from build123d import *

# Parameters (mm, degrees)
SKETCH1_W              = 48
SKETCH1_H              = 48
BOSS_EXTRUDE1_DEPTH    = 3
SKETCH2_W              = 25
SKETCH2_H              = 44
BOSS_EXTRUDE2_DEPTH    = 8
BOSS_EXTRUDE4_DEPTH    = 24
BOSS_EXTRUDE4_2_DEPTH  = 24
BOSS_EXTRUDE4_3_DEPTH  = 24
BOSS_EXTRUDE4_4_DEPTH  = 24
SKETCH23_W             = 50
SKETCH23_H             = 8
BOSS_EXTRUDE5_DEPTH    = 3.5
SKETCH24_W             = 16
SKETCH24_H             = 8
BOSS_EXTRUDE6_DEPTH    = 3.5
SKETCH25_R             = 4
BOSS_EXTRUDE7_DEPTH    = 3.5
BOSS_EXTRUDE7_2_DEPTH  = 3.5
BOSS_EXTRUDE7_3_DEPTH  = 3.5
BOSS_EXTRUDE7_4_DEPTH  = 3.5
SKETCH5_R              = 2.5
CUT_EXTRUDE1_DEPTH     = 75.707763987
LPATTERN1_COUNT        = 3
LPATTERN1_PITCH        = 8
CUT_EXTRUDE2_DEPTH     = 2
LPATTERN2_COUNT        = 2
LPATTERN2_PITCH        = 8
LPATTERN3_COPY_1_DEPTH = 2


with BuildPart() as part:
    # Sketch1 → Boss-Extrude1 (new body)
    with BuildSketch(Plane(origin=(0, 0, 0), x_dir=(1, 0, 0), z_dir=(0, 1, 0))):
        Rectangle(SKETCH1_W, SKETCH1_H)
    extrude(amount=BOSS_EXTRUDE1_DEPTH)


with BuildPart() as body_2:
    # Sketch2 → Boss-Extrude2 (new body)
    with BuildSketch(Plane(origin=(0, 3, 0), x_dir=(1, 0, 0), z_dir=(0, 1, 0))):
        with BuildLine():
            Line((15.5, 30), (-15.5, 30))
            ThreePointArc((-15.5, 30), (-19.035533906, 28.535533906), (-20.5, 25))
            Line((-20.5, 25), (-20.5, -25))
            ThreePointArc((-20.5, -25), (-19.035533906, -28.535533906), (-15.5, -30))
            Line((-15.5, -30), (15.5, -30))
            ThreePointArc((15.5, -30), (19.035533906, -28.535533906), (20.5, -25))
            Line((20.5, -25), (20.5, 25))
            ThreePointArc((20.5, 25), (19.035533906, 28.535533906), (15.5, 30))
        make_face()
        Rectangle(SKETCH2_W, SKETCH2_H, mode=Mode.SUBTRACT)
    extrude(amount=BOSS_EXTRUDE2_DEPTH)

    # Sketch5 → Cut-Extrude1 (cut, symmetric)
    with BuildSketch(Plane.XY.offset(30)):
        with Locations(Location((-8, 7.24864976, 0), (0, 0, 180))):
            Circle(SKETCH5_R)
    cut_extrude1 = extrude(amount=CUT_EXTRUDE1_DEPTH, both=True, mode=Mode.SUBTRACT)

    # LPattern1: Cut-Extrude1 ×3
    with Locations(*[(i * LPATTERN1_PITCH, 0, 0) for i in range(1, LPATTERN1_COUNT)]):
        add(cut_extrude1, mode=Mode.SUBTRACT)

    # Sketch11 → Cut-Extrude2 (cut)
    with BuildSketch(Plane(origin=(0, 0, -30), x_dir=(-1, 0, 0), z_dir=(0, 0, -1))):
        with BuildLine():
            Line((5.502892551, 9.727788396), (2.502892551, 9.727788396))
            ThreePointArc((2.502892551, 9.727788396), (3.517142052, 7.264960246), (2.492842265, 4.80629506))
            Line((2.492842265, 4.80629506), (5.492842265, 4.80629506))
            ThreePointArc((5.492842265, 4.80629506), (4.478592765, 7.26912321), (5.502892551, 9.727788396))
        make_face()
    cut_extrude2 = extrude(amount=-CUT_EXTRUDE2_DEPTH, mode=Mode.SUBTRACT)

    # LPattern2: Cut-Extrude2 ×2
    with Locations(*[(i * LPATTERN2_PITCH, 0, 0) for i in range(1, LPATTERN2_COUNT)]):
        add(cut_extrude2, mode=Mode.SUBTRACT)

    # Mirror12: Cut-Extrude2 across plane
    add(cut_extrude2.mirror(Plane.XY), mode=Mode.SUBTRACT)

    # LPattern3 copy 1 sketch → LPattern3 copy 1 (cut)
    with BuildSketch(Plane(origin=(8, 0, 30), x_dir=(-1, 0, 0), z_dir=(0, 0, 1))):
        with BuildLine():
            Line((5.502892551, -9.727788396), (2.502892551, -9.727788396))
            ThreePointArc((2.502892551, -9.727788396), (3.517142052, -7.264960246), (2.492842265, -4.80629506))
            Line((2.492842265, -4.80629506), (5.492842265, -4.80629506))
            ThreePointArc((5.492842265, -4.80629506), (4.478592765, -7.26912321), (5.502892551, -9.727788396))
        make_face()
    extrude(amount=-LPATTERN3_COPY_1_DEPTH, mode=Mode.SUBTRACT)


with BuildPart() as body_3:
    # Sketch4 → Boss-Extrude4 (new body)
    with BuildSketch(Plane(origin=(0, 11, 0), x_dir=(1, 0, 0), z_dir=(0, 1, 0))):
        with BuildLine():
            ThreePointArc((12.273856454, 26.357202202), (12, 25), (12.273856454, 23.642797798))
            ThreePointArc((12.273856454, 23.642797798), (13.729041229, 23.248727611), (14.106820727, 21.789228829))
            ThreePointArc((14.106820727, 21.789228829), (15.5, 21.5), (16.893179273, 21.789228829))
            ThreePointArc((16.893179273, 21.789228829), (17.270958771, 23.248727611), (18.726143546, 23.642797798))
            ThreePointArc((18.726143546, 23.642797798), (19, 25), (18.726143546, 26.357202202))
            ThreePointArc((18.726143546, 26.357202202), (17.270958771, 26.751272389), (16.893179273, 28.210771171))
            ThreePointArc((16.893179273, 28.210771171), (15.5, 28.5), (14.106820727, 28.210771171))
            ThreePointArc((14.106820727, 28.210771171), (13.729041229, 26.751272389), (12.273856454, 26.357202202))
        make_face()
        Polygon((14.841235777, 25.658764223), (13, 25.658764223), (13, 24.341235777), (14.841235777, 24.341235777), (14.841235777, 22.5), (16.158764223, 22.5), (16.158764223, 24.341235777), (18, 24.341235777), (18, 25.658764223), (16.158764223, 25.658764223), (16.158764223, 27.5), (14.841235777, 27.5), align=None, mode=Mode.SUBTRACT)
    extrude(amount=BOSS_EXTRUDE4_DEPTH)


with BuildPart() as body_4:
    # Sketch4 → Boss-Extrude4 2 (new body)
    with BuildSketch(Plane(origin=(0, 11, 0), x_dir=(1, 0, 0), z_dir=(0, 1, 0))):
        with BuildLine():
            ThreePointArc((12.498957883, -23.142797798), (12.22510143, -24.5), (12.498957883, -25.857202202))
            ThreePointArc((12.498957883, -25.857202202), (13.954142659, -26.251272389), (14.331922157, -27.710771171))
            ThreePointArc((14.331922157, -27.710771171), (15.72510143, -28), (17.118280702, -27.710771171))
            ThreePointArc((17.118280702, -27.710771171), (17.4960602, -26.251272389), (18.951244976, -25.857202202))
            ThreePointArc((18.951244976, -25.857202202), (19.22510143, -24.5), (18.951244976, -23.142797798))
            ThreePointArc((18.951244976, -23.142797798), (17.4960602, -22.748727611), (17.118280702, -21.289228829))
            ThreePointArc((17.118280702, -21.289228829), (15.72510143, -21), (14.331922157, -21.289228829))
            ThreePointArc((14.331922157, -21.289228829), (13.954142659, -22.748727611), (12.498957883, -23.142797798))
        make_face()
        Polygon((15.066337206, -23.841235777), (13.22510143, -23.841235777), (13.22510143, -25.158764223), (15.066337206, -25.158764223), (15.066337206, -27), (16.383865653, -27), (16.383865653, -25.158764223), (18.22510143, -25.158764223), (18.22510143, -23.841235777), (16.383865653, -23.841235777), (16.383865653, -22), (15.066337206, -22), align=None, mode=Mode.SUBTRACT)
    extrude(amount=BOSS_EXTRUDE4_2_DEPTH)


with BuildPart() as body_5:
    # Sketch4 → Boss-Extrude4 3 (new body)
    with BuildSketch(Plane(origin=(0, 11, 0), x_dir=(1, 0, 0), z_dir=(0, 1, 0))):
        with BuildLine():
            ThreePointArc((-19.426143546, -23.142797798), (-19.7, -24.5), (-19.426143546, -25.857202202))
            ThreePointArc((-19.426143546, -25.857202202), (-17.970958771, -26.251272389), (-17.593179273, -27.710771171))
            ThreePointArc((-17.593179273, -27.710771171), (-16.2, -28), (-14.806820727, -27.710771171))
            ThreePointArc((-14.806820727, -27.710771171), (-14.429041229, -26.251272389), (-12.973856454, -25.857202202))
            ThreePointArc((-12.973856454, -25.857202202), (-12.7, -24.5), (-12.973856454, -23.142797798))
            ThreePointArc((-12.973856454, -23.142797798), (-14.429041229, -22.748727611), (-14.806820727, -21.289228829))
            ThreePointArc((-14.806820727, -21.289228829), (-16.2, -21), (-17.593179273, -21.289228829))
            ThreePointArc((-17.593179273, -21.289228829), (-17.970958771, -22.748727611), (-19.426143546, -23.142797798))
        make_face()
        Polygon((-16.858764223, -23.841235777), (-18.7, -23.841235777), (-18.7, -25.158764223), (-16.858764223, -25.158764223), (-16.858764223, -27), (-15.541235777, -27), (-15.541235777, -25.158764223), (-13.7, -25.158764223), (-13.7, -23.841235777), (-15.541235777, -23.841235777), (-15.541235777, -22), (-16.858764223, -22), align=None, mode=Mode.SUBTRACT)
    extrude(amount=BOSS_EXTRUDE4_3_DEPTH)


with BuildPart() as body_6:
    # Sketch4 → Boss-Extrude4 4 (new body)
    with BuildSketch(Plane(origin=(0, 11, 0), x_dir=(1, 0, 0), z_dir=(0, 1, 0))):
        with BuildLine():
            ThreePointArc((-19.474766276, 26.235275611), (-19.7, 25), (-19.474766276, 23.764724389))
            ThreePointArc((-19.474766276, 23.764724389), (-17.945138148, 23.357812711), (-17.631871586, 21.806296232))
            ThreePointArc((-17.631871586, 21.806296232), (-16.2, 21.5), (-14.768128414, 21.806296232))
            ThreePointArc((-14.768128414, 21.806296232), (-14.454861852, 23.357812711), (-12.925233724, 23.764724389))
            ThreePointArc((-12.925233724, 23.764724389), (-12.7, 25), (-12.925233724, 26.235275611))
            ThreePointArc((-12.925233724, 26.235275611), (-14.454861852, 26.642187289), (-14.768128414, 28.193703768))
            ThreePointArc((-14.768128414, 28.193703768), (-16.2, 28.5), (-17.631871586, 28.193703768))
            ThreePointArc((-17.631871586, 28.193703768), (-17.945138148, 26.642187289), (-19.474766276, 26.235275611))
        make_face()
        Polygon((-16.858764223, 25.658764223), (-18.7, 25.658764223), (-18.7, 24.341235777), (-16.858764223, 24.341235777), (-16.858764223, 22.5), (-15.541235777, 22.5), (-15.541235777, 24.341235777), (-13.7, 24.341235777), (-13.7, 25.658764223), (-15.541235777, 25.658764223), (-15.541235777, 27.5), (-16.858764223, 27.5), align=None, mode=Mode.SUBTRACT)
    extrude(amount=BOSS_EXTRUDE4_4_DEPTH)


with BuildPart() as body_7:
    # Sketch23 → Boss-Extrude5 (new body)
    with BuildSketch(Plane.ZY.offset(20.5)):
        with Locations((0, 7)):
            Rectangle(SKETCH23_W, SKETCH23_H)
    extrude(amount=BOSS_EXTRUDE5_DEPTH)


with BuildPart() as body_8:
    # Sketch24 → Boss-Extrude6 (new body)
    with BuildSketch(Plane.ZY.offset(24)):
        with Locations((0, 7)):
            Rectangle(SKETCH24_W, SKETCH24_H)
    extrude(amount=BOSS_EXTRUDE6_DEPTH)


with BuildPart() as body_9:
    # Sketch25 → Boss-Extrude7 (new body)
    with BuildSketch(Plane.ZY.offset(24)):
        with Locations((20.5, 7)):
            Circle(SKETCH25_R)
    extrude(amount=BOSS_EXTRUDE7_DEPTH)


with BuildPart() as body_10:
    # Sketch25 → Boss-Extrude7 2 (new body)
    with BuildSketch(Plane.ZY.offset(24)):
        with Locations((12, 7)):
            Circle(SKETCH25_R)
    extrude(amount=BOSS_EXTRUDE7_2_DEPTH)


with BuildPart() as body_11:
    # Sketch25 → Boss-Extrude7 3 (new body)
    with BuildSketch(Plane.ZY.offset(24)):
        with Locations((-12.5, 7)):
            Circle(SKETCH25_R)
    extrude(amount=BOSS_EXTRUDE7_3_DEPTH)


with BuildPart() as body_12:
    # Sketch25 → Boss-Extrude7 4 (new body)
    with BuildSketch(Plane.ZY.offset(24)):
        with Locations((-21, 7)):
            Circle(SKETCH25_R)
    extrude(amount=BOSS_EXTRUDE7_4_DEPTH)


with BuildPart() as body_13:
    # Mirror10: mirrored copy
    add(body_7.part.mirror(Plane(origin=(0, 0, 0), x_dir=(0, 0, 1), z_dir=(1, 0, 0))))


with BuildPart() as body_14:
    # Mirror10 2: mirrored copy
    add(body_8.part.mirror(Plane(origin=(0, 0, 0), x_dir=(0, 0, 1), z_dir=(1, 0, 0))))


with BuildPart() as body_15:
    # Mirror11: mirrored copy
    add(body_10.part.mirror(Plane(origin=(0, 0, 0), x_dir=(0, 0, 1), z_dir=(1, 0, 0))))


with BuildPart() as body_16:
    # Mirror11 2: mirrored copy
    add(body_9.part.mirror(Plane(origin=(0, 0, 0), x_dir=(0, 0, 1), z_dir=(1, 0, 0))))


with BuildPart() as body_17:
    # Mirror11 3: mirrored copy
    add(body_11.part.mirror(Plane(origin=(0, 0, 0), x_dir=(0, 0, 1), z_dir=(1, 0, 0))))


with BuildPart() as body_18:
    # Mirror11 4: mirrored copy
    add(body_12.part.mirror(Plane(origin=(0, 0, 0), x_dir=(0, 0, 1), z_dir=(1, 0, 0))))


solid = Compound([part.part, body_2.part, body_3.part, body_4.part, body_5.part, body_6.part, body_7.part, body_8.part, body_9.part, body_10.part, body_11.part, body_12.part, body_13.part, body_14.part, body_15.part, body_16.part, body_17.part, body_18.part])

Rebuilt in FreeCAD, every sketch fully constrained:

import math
import FreeCAD as App
import Part
import Sketcher
Q = App.Units.Quantity


def add_polygon(sketch, points):
    """Adds a closed chain of lines whose ends are joined by coincident constraints."""
    first, n = sketch.GeometryCount, len(points)
    for a, b in zip(points, points[1:] + points[:1]):
        sketch.addGeometry(Part.LineSegment(App.Vector(*a, 0), App.Vector(*b, 0)), False)
    for i in range(n):
        sketch.addConstraint(Sketcher.Constraint("Coincident", first + i, 2, first + (i + 1) % n, 1))

doc = App.newDocument("Part")
params = doc.addObject("Spreadsheet::Sheet", "Params")
for row, (alias, value) in enumerate([
    ("sketch1_width", "48 mm"),
    ("pad1_length", "3 mm"),
    ("sketch2_radius", "5 mm"),
    ("sketch2_width", "31 mm"),
    ("sketch2_width2", "25 mm"),
    ("sketch2_height", "50 mm"),
    ("sketch2_height2", "44 mm"),
    ("pad2_length", "8 mm"),
    ("sketch3_diameter", "5 mm"),
    ("pocket1_length", "151.415528 mm"),
    ("linearpattern_pitch", "8 mm"),
    ("sketch4_width", "3 mm"),
    ("pocket2_length", "2 mm"),
    ("linearpattern2_pitch", "8 mm"),
    ("sketch5_width", "3 mm"),
    ("pocket3_length", "2 mm"),
    ("sketch6_radius", "3.5 mm"),
    ("sketch6_radius2", "1.5 mm"),
    ("pad3_length", "24 mm"),
    ("sketch7_radius", "3.5 mm"),
    ("sketch7_radius2", "1.5 mm"),
    ("pad4_length", "24 mm"),
    ("sketch8_radius", "3.5 mm"),
    ("sketch8_radius2", "1.5 mm"),
    ("pad5_length", "24 mm"),
    ("sketch9_radius", "3.5 mm"),
    ("sketch9_radius2", "1.5 mm"),
    ("pad6_length", "24 mm"),
    ("sketch10_width", "8 mm"),
    ("sketch10_height", "50 mm"),
    ("pad7_length", "3.5 mm"),
    ("sketch11_width", "8 mm"),
    ("sketch11_height", "16 mm"),
    ("pad8_length", "3.5 mm"),
    ("sketch12_diameter", "8 mm"),
    ("pad9_length", "3.5 mm"),
    ("sketch13_diameter", "8 mm"),
    ("pad10_length", "3.5 mm"),
    ("sketch14_diameter", "8 mm"),
    ("pad11_length", "3.5 mm"),
    ("sketch15_diameter", "8 mm"),
    ("pad12_length", "3.5 mm"),
], start=1):
    params.set(f"A{row}", alias)
    params.set(f"B{row}", "=" + value)
    params.setAlias(f"B{row}", alias)

body = doc.addObject("PartDesign::Body", "Body")

sketch1 = body.newObject("Sketcher::SketchObject", "Sketch")
sketch1.AttachmentSupport = (doc.getObject("XZ_Plane"), [""])
sketch1.MapMode = "FlatFace"
add_polygon(sketch1, [(-24, -24), (-24, 24), (24, 24), (24, -24)])
sketch1.addConstraint(Sketcher.Constraint("Vertical", 0))
sketch1.addConstraint(Sketcher.Constraint("Horizontal", 1))
sketch1.addConstraint(Sketcher.Constraint("Vertical", 2))
sketch1.addConstraint(Sketcher.Constraint("Horizontal", 3))
sketch1.addConstraint(Sketcher.Constraint("Symmetric", 0, 2, 2, 2, -1, 1))
sketch1.addConstraint(Sketcher.Constraint("Equal", 3, 0))
sketch1.addConstraint(Sketcher.Constraint("DistanceX", 1, 1, 1, 2, Q("48 mm")))
sketch1.setExpression("Constraints[10]", "Params.sketch1_width")
pad1 = body.newObject("PartDesign::Pad", "Pad")
pad1.Profile = sketch1
pad1.setExpression("Length", "Params.pad1_length")
pad1.Reversed = True
body2 = doc.addObject("PartDesign::Body", "Body001")

sketch2 = body2.newObject("Sketcher::SketchObject", "Sketch001")
sketch2.AttachmentSupport = (doc.getObject("XZ_Plane001"), [""])
sketch2.MapMode = "FlatFace"
sketch2.AttachmentOffset = App.Placement(App.Vector(0, 0, -3), App.Rotation())
sketch2.addGeometry(Part.LineSegment(App.Vector(16, -30, 0), App.Vector(-16, -30, 0)), False)
sketch2.addGeometry(Part.ArcOfCircle(Part.Circle(App.Vector(-16, -25, 0), App.Vector(0, 0, 1), 5), math.radians(180), math.radians(270)), False)
sketch2.addGeometry(Part.LineSegment(App.Vector(-20, -25, 0), App.Vector(-20, 25, 0)), False)
sketch2.addGeometry(Part.ArcOfCircle(Part.Circle(App.Vector(-16, 25, 0), App.Vector(0, 0, 1), 5), math.radians(90), math.radians(180)), False)
sketch2.addGeometry(Part.LineSegment(App.Vector(-16, 30, 0), App.Vector(16, 30, 0)), False)
sketch2.addGeometry(Part.ArcOfCircle(Part.Circle(App.Vector(16, 25, 0), App.Vector(0, 0, 1), 5), math.radians(0), math.radians(90)), False)
sketch2.addGeometry(Part.LineSegment(App.Vector(20, 25, 0), App.Vector(20, -25, 0)), False)
sketch2.addGeometry(Part.ArcOfCircle(Part.Circle(App.Vector(16, -25, 0), App.Vector(0, 0, 1), 5), math.radians(-90), math.radians(0)), False)
add_polygon(sketch2, [(12, 22), (-12, 22), (-12, -22), (12, -22)])
sketch2.addConstraint(Sketcher.Constraint("Tangent", 0, 2, 1, 2))
sketch2.addConstraint(Sketcher.Constraint("Tangent", 1, 1, 2, 1))
sketch2.addConstraint(Sketcher.Constraint("Tangent", 2, 2, 3, 2))
sketch2.addConstraint(Sketcher.Constraint("Tangent", 3, 1, 4, 1))
sketch2.addConstraint(Sketcher.Constraint("Tangent", 4, 2, 5, 2))
sketch2.addConstraint(Sketcher.Constraint("Tangent", 5, 1, 6, 1))
sketch2.addConstraint(Sketcher.Constraint("Tangent", 6, 2, 7, 2))
sketch2.addConstraint(Sketcher.Constraint("Tangent", 7, 1, 0, 1))
sketch2.addConstraint(Sketcher.Constraint("Horizontal", 0))
sketch2.addConstraint(Sketcher.Constraint("Vertical", 2))
sketch2.addConstraint(Sketcher.Constraint("Horizontal", 4))
sketch2.addConstraint(Sketcher.Constraint("Vertical", 6))
sketch2.addConstraint(Sketcher.Constraint("Horizontal", 8))
sketch2.addConstraint(Sketcher.Constraint("Vertical", 9))
sketch2.addConstraint(Sketcher.Constraint("Horizontal", 10))
sketch2.addConstraint(Sketcher.Constraint("Vertical", 11))
sketch2.addConstraint(Sketcher.Constraint("Equal", 1, 3))
sketch2.addConstraint(Sketcher.Constraint("Equal", 3, 5))
sketch2.addConstraint(Sketcher.Constraint("Equal", 5, 7))
sketch2.addConstraint(Sketcher.Constraint("Symmetric", 1, 3, 5, 3, -1, 1))
sketch2.addConstraint(Sketcher.Constraint("Symmetric", 8, 2, 10, 2, -1, 1))
sketch2.addConstraint(Sketcher.Constraint("Radius", 1, Q("5 mm")))
sketch2.addConstraint(Sketcher.Constraint("DistanceX", 0, 2, 0, 1, Q("31 mm")))
sketch2.addConstraint(Sketcher.Constraint("DistanceX", 8, 2, 8, 1, Q("25 mm")))
sketch2.addConstraint(Sketcher.Constraint("DistanceY", 2, 1, 2, 2, Q("50 mm")))
sketch2.addConstraint(Sketcher.Constraint("DistanceY", 9, 2, 9, 1, Q("44 mm")))
sketch2.setExpression("Constraints[25]", "Params.sketch2_radius")
sketch2.setExpression("Constraints[26]", "Params.sketch2_width")
sketch2.setExpression("Constraints[27]", "Params.sketch2_width2")
sketch2.setExpression("Constraints[28]", "Params.sketch2_height")
sketch2.setExpression("Constraints[29]", "Params.sketch2_height2")
pad2 = body2.newObject("PartDesign::Pad", "Pad001")
pad2.Profile = sketch2
pad2.setExpression("Length", "Params.pad2_length")
pad2.Reversed = True

sketch3 = body2.newObject("Sketcher::SketchObject", "Sketch002")
sketch3.AttachmentSupport = (doc.getObject("XY_Plane001"), [""])
sketch3.MapMode = "FlatFace"
sketch3.AttachmentOffset = App.Placement(App.Vector(0, 0, 30), App.Rotation())
sketch3.addGeometry(Part.Circle(App.Vector(-8, 7.2, 0), App.Vector(0, 0, 1), 2.5), False)
sketch3.addConstraint(Sketcher.Constraint("Diameter", 0, Q("5 mm")))
sketch3.addConstraint(Sketcher.Constraint("DistanceX", 0, 3, -1, 1, Q("8 mm")))
sketch3.addConstraint(Sketcher.Constraint("DistanceY", -1, 1, 0, 3, Q("7.24865 mm")))
sketch3.setExpression("Constraints[0]", "Params.sketch3_diameter")
pocket1 = body2.newObject("PartDesign::Pocket", "Pocket")
pocket1.Profile = sketch3
pocket1.setExpression("Length", "Params.pocket1_length")
pocket1.Midplane = True
doc.recompute()

linearpattern = body2.newObject("PartDesign::LinearPattern", "LinearPattern")
linearpattern.Originals = [pocket1]
linearpattern.Direction = (doc.getObject("X_Axis001"), [""])
linearpattern.Mode = "offset"
linearpattern.setExpression("Offset", "Params.linearpattern_pitch")
linearpattern.Occurrences = 3
body2.Tip = linearpattern

sketch4 = body2.newObject("Sketcher::SketchObject", "Sketch003")
sketch4.AttachmentSupport = (doc.getObject("XY_Plane001"), [""])
sketch4.MapMode = "FlatFace"
sketch4.AttachmentOffset = App.Placement(App.Vector(0, 0, -30), App.Rotation())
sketch4.addGeometry(Part.LineSegment(App.Vector(-5.5, 9.7, 0), App.Vector(-2.5, 9.7, 0)), False)
sketch4.addGeometry(Part.ArcOfCircle(Part.Circle(App.Vector(0, 7.3, 0), App.Vector(0, 0, 1), 3.5), math.radians(135), math.radians(225)), False)
sketch4.addGeometry(Part.LineSegment(App.Vector(-2.5, 4.8, 0), App.Vector(-5.5, 4.8, 0)), False)
sketch4.addGeometry(Part.ArcOfCircle(Part.Circle(App.Vector(-8, 7.3, 0), App.Vector(0, 0, 1), 3.5), math.radians(-45), math.radians(45)), False)
sketch4.addConstraint(Sketcher.Constraint("Coincident", 0, 2, 1, 1))
sketch4.addConstraint(Sketcher.Constraint("Coincident", 1, 2, 2, 1))
sketch4.addConstraint(Sketcher.Constraint("Coincident", 2, 2, 3, 1))
sketch4.addConstraint(Sketcher.Constraint("Coincident", 3, 2, 0, 1))
sketch4.addConstraint(Sketcher.Constraint("Horizontal", 0))
sketch4.addConstraint(Sketcher.Constraint("Horizontal", 2))
sketch4.addConstraint(Sketcher.Constraint("Equal", 1, 3))
sketch4.addConstraint(Sketcher.Constraint("Equal", 0, 2))
sketch4.addConstraint(Sketcher.Constraint("DistanceX", 0, 1, 0, 2, Q("3 mm")))
sketch4.addConstraint(Sketcher.Constraint("Radius", 1, Q("3.480029 mm")))
sketch4.addConstraint(Sketcher.Constraint("DistanceX", 1, 3, -1, 1, Q("0.037121 mm")))
sketch4.addConstraint(Sketcher.Constraint("DistanceY", -1, 1, 0, 2, Q("9.727788 mm")))
sketch4.addConstraint(Sketcher.Constraint("DistanceY", 3, 3, 1, 3, Q("0.01005 mm")))
sketch4.addConstraint(Sketcher.Constraint("DistanceX", 0, 2, 1, 3, Q("2.465772 mm")))
sketch4.setExpression("Constraints[8]", "Params.sketch4_width")
pocket2 = body2.newObject("PartDesign::Pocket", "Pocket001")
pocket2.Profile = sketch4
pocket2.setExpression("Length", "Params.pocket2_length")
pocket2.Reversed = True
doc.recompute()

linearpattern2 = body2.newObject("PartDesign::LinearPattern", "LinearPattern001")
linearpattern2.Originals = [pocket2]
linearpattern2.Direction = (doc.getObject("X_Axis001"), [""])
linearpattern2.Mode = "offset"
linearpattern2.setExpression("Offset", "Params.linearpattern2_pitch")
linearpattern2.Occurrences = 2
body2.Tip = linearpattern2
doc.recompute()

mirrored = body2.newObject("PartDesign::Mirrored", "Mirrored")
mirrored.Originals = [pocket2]
mirrored.MirrorPlane = (doc.getObject("XY_Plane001"), [""])
body2.Tip = mirrored

sketch5 = body2.newObject("Sketcher::SketchObject", "Sketch004")
sketch5.AttachmentSupport = (doc.getObject("XY_Plane001"), [""])
sketch5.MapMode = "FlatFace"
sketch5.AttachmentOffset = App.Placement(App.Vector(0, 0, 30), App.Rotation())
sketch5.addGeometry(Part.LineSegment(App.Vector(5.5, 9.7, 0), App.Vector(2.5, 9.7, 0)), False)
sketch5.addGeometry(Part.ArcOfCircle(Part.Circle(App.Vector(0, 7.3, 0), App.Vector(0, 0, 1), 3.5), math.radians(-45), math.radians(45)), False)
sketch5.addGeometry(Part.LineSegment(App.Vector(2.5, 4.8, 0), App.Vector(5.5, 4.8, 0)), False)
sketch5.addGeometry(Part.ArcOfCircle(Part.Circle(App.Vector(8, 7.3, 0), App.Vector(0, 0, 1), 3.5), math.radians(135), math.radians(225)), False)
sketch5.addConstraint(Sketcher.Constraint("Coincident", 0, 2, 1, 2))
sketch5.addConstraint(Sketcher.Constraint("Coincident", 1, 1, 2, 1))
sketch5.addConstraint(Sketcher.Constraint("Coincident", 2, 2, 3, 2))
sketch5.addConstraint(Sketcher.Constraint("Coincident", 3, 1, 0, 1))
sketch5.addConstraint(Sketcher.Constraint("Horizontal", 0))
sketch5.addConstraint(Sketcher.Constraint("Horizontal", 2))
sketch5.addConstraint(Sketcher.Constraint("Equal", 1, 3))
sketch5.addConstraint(Sketcher.Constraint("Equal", 0, 2))
sketch5.addConstraint(Sketcher.Constraint("DistanceX", 0, 2, 0, 1, Q("3 mm")))
sketch5.addConstraint(Sketcher.Constraint("Radius", 1, Q("3.480029 mm")))
sketch5.addConstraint(Sketcher.Constraint("DistanceX", -1, 1, 3, 3, Q("7.962879 mm")))
sketch5.addConstraint(Sketcher.Constraint("DistanceY", -1, 1, 0, 2, Q("9.727788 mm")))
sketch5.addConstraint(Sketcher.Constraint("DistanceY", 1, 3, 3, 3, Q("0.01005 mm")))
sketch5.addConstraint(Sketcher.Constraint("DistanceX", 1, 3, 0, 2, Q("2.455722 mm")))
sketch5.setExpression("Constraints[8]", "Params.sketch5_width")
pocket3 = body2.newObject("PartDesign::Pocket", "Pocket002")
pocket3.Profile = sketch5
pocket3.setExpression("Length", "Params.pocket3_length")
body3 = doc.addObject("PartDesign::Body", "Body002")

sketch6 = body3.newObject("Sketcher::SketchObject", "Sketch005")
sketch6.AttachmentSupport = (doc.getObject("XZ_Plane002"), [""])
sketch6.MapMode = "FlatFace"
sketch6.AttachmentOffset = App.Placement(App.Vector(0, 0, -11), App.Rotation())
sketch6.addGeometry(Part.ArcOfCircle(Part.Circle(App.Vector(15.5, -25, 0), App.Vector(0, 0, 1), 3.5), math.radians(157), math.radians(203)), False)
sketch6.addGeometry(Part.ArcOfCircle(Part.Circle(App.Vector(12.7, -22.2, 0), App.Vector(0, 0, 1), 1.5), math.radians(-105), math.radians(16)), False)
sketch6.addGeometry(Part.ArcOfCircle(Part.Circle(App.Vector(15.5, -25, 0), App.Vector(0, 0, 1), 3.5), math.radians(67), math.radians(113)), False)
sketch6.addGeometry(Part.ArcOfCircle(Part.Circle(App.Vector(18.3, -22.2, 0), App.Vector(0, 0, 1), 1.5), math.radians(164), math.radians(285)), False)
sketch6.addGeometry(Part.ArcOfCircle(Part.Circle(App.Vector(15.5, -25, 0), App.Vector(0, 0, 1), 3.5), math.radians(-23), math.radians(23)), False)
sketch6.addGeometry(Part.ArcOfCircle(Part.Circle(App.Vector(18.3, -27.8, 0), App.Vector(0, 0, 1), 1.5), math.radians(75), math.radians(196)), False)
sketch6.addGeometry(Part.ArcOfCircle(Part.Circle(App.Vector(15.5, -25, 0), App.Vector(0, 0, 1), 3.5), math.radians(-113), math.radians(-67)), False)
sketch6.addGeometry(Part.ArcOfCircle(Part.Circle(App.Vector(12.7, -27.8, 0), App.Vector(0, 0, 1), 1.5), math.radians(-16), math.radians(105)), False)
add_polygon(sketch6, [(13, -25.7), (14.8, -25.7), (14.8, -27.5), (16.2, -27.5), (16.2, -25.7), (18, -25.7), (18, -24.3), (16.2, -24.3), (16.2, -22.5), (14.8, -22.5), (14.8, -24.3), (13, -24.3)])
sketch6.addConstraint(Sketcher.Constraint("Coincident", 0, 1, 1, 1))
sketch6.addConstraint(Sketcher.Constraint("Coincident", 1, 2, 2, 2))
sketch6.addConstraint(Sketcher.Constraint("Coincident", 2, 1, 3, 1))
sketch6.addConstraint(Sketcher.Constraint("Coincident", 3, 2, 4, 2))
sketch6.addConstraint(Sketcher.Constraint("Coincident", 4, 1, 5, 1))
sketch6.addConstraint(Sketcher.Constraint("Coincident", 5, 2, 6, 2))
sketch6.addConstraint(Sketcher.Constraint("Coincident", 6, 1, 7, 1))
sketch6.addConstraint(Sketcher.Constraint("Coincident", 7, 2, 0, 2))
sketch6.addConstraint(Sketcher.Constraint("Horizontal", 8))
sketch6.addConstraint(Sketcher.Constraint("Vertical", 9))
sketch6.addConstraint(Sketcher.Constraint("Horizontal", 10))
sketch6.addConstraint(Sketcher.Constraint("Vertical", 11))
sketch6.addConstraint(Sketcher.Constraint("Horizontal", 12))
sketch6.addConstraint(Sketcher.Constraint("Vertical", 13))
sketch6.addConstraint(Sketcher.Constraint("Horizontal", 14))
sketch6.addConstraint(Sketcher.Constraint("Vertical", 15))
sketch6.addConstraint(Sketcher.Constraint("Horizontal", 16))
sketch6.addConstraint(Sketcher.Constraint("Vertical", 17))
sketch6.addConstraint(Sketcher.Constraint("Horizontal", 18))
sketch6.addConstraint(Sketcher.Constraint("Vertical", 19))
sketch6.addConstraint(Sketcher.Constraint("Coincident", 2, 3, 0, 3))
sketch6.addConstraint(Sketcher.Constraint("Coincident", 4, 3, 0, 3))
sketch6.addConstraint(Sketcher.Constraint("Coincident", 6, 3, 0, 3))
sketch6.addConstraint(Sketcher.Constraint("Equal", 0, 2))
sketch6.addConstraint(Sketcher.Constraint("Equal", 1, 3))
sketch6.addConstraint(Sketcher.Constraint("Equal", 2, 4))
sketch6.addConstraint(Sketcher.Constraint("Equal", 3, 5))
sketch6.addConstraint(Sketcher.Constraint("Equal", 4, 6))
sketch6.addConstraint(Sketcher.Constraint("Equal", 5, 7))
sketch6.addConstraint(Sketcher.Constraint("Horizontal", 1, 3, 3, 3))
sketch6.addConstraint(Sketcher.Constraint("Horizontal", 5, 3, 7, 3))
sketch6.addConstraint(Sketcher.Constraint("Horizontal", 1, 2, 2, 1))
sketch6.addConstraint(Sketcher.Constraint("Horizontal", 5, 2, 6, 1))
sketch6.addConstraint(Sketcher.Constraint("Horizontal", 8, 2, 11, 2))
sketch6.addConstraint(Sketcher.Constraint("Horizontal", 14, 2, 17, 2))
sketch6.addConstraint(Sketcher.Constraint("Vertical", 3, 3, 5, 3))
sketch6.addConstraint(Sketcher.Constraint("Vertical", 3, 2, 4, 1))
sketch6.addConstraint(Sketcher.Constraint("Vertical", 11, 2, 14, 2))
sketch6.addConstraint(Sketcher.Constraint("Vertical", 9, 2, 16, 2))
sketch6.addConstraint(Sketcher.Constraint("Equal", 8, 12))
sketch6.addConstraint(Sketcher.Constraint("Equal", 18, 9))
sketch6.addConstraint(Sketcher.Constraint("Equal", 16, 13))
sketch6.addConstraint(Sketcher.Constraint("Equal", 11, 15))
sketch6.addConstraint(Sketcher.Constraint("Radius", 0, Q("3.5 mm")))
sketch6.addConstraint(Sketcher.Constraint("Radius", 1, Q("1.5 mm")))
sketch6.addConstraint(Sketcher.Constraint("DistanceY", 0, 3, -1, 1, Q("25 mm")))
sketch6.addConstraint(Sketcher.Constraint("DistanceX", -1, 1, 12, 2, Q("18 mm")))
sketch6.addConstraint(Sketcher.Constraint("DistanceX", -1, 1, 18, 2, Q("13 mm")))
sketch6.addConstraint(Sketcher.Constraint("DistanceX", -1, 1, 0, 3, Q("15.5 mm")))
sketch6.addConstraint(Sketcher.Constraint("DistanceY", 9, 2, -1, 1, Q("27.5 mm")))
sketch6.addConstraint(Sketcher.Constraint("DistanceX", 10, 1, 10, 2, Q("1.317528 mm")))
sketch6.addConstraint(Sketcher.Constraint("DistanceX", -1, 1, 1, 3, Q("12.662469 mm")))
sketch6.addConstraint(Sketcher.Constraint("DistanceX", -1, 1, 1, 2, Q("14.106821 mm")))
sketch6.setExpression("Constraints[55]", "Params.sketch6_radius")
sketch6.setExpression("Constraints[56]", "Params.sketch6_radius2")
pad3 = body3.newObject("PartDesign::Pad", "Pad002")
pad3.Profile = sketch6
pad3.setExpression("Length", "Params.pad3_length")
pad3.Reversed = True
body4 = doc.addObject("PartDesign::Body", "Body003")

sketch7 = body4.newObject("Sketcher::SketchObject", "Sketch006")
sketch7.AttachmentSupport = (doc.getObject("XZ_Plane003"), [""])
sketch7.MapMode = "FlatFace"
sketch7.AttachmentOffset = App.Placement(App.Vector(0, 0, -11), App.Rotation())
sketch7.addGeometry(Part.ArcOfCircle(Part.Circle(App.Vector(15.7, 24.5, 0), App.Vector(0, 0, 1), 3.5), math.radians(157), math.radians(203)), False)
sketch7.addGeometry(Part.ArcOfCircle(Part.Circle(App.Vector(12.9, 27.3, 0), App.Vector(0, 0, 1), 1.5), math.radians(-105), math.radians(16)), False)
sketch7.addGeometry(Part.ArcOfCircle(Part.Circle(App.Vector(15.7, 24.5, 0), App.Vector(0, 0, 1), 3.5), math.radians(67), math.radians(113)), False)
sketch7.addGeometry(Part.ArcOfCircle(Part.Circle(App.Vector(18.6, 27.3, 0), App.Vector(0, 0, 1), 1.5), math.radians(164), math.radians(285)), False)
sketch7.addGeometry(Part.ArcOfCircle(Part.Circle(App.Vector(15.7, 24.5, 0), App.Vector(0, 0, 1), 3.5), math.radians(-23), math.radians(23)), False)
sketch7.addGeometry(Part.ArcOfCircle(Part.Circle(App.Vector(18.6, 21.7, 0), App.Vector(0, 0, 1), 1.5), math.radians(75), math.radians(196)), False)
sketch7.addGeometry(Part.ArcOfCircle(Part.Circle(App.Vector(15.7, 24.5, 0), App.Vector(0, 0, 1), 3.5), math.radians(-113), math.radians(-67)), False)
sketch7.addGeometry(Part.ArcOfCircle(Part.Circle(App.Vector(12.9, 21.7, 0), App.Vector(0, 0, 1), 1.5), math.radians(-16), math.radians(105)), False)
add_polygon(sketch7, [(13.2, 23.8), (15.1, 23.8), (15.1, 22), (16.4, 22), (16.4, 23.8), (18.2, 23.8), (18.2, 25.2), (16.4, 25.2), (16.4, 27), (15.1, 27), (15.1, 25.2), (13.2, 25.2)])
sketch7.addConstraint(Sketcher.Constraint("Coincident", 0, 1, 1, 1))
sketch7.addConstraint(Sketcher.Constraint("Coincident", 1, 2, 2, 2))
sketch7.addConstraint(Sketcher.Constraint("Coincident", 2, 1, 3, 1))
sketch7.addConstraint(Sketcher.Constraint("Coincident", 3, 2, 4, 2))
sketch7.addConstraint(Sketcher.Constraint("Coincident", 4, 1, 5, 1))
sketch7.addConstraint(Sketcher.Constraint("Coincident", 5, 2, 6, 2))
sketch7.addConstraint(Sketcher.Constraint("Coincident", 6, 1, 7, 1))
sketch7.addConstraint(Sketcher.Constraint("Coincident", 7, 2, 0, 2))
sketch7.addConstraint(Sketcher.Constraint("Horizontal", 8))
sketch7.addConstraint(Sketcher.Constraint("Vertical", 9))
sketch7.addConstraint(Sketcher.Constraint("Horizontal", 10))
sketch7.addConstraint(Sketcher.Constraint("Vertical", 11))
sketch7.addConstraint(Sketcher.Constraint("Horizontal", 12))
sketch7.addConstraint(Sketcher.Constraint("Vertical", 13))
sketch7.addConstraint(Sketcher.Constraint("Horizontal", 14))
sketch7.addConstraint(Sketcher.Constraint("Vertical", 15))
sketch7.addConstraint(Sketcher.Constraint("Horizontal", 16))
sketch7.addConstraint(Sketcher.Constraint("Vertical", 17))
sketch7.addConstraint(Sketcher.Constraint("Horizontal", 18))
sketch7.addConstraint(Sketcher.Constraint("Vertical", 19))
sketch7.addConstraint(Sketcher.Constraint("Coincident", 2, 3, 0, 3))
sketch7.addConstraint(Sketcher.Constraint("Coincident", 4, 3, 0, 3))
sketch7.addConstraint(Sketcher.Constraint("Coincident", 6, 3, 0, 3))
sketch7.addConstraint(Sketcher.Constraint("Equal", 0, 2))
sketch7.addConstraint(Sketcher.Constraint("Equal", 1, 3))
sketch7.addConstraint(Sketcher.Constraint("Equal", 2, 4))
sketch7.addConstraint(Sketcher.Constraint("Equal", 3, 5))
sketch7.addConstraint(Sketcher.Constraint("Equal", 4, 6))
sketch7.addConstraint(Sketcher.Constraint("Equal", 5, 7))
sketch7.addConstraint(Sketcher.Constraint("Horizontal", 1, 3, 3, 3))
sketch7.addConstraint(Sketcher.Constraint("Horizontal", 5, 3, 7, 3))
sketch7.addConstraint(Sketcher.Constraint("Horizontal", 1, 2, 2, 1))
sketch7.addConstraint(Sketcher.Constraint("Horizontal", 5, 2, 6, 1))
sketch7.addConstraint(Sketcher.Constraint("Horizontal", 8, 2, 11, 2))
sketch7.addConstraint(Sketcher.Constraint("Horizontal", 14, 2, 17, 2))
sketch7.addConstraint(Sketcher.Constraint("Vertical", 3, 3, 5, 3))
sketch7.addConstraint(Sketcher.Constraint("Vertical", 3, 2, 4, 1))
sketch7.addConstraint(Sketcher.Constraint("Vertical", 11, 2, 14, 2))
sketch7.addConstraint(Sketcher.Constraint("Vertical", 9, 2, 16, 2))
sketch7.addConstraint(Sketcher.Constraint("Equal", 8, 12))
sketch7.addConstraint(Sketcher.Constraint("Equal", 18, 9))
sketch7.addConstraint(Sketcher.Constraint("Equal", 16, 13))
sketch7.addConstraint(Sketcher.Constraint("Equal", 11, 15))
sketch7.addConstraint(Sketcher.Constraint("Radius", 0, Q("3.5 mm")))
sketch7.addConstraint(Sketcher.Constraint("Radius", 1, Q("1.5 mm")))
sketch7.addConstraint(Sketcher.Constraint("DistanceY", -1, 1, 9, 2, Q("22 mm")))
sketch7.addConstraint(Sketcher.Constraint("DistanceY", -1, 1, 15, 2, Q("27 mm")))
sketch7.addConstraint(Sketcher.Constraint("DistanceY", -1, 1, 0, 3, Q("24.5 mm")))
sketch7.addConstraint(Sketcher.Constraint("DistanceX", 4, 3, 12, 2, Q("2.5 mm")))
sketch7.addConstraint(Sketcher.Constraint("DistanceX", 10, 1, 10, 2, Q("1.317528 mm")))
sketch7.addConstraint(Sketcher.Constraint("DistanceX", -1, 1, 0, 3, Q("15.725101 mm")))
sketch7.addConstraint(Sketcher.Constraint("DistanceX", -1, 1, 1, 3, Q("12.887571 mm")))
sketch7.addConstraint(Sketcher.Constraint("DistanceY", -1, 1, 1, 2, Q("27.710771 mm")))
sketch7.setExpression("Constraints[55]", "Params.sketch7_radius")
sketch7.setExpression("Constraints[56]", "Params.sketch7_radius2")
pad4 = body4.newObject("PartDesign::Pad", "Pad003")
pad4.Profile = sketch7
pad4.setExpression("Length", "Params.pad4_length")
pad4.Reversed = True
body5 = doc.addObject("PartDesign::Body", "Body004")

sketch8 = body5.newObject("Sketcher::SketchObject", "Sketch007")
sketch8.AttachmentSupport = (doc.getObject("XZ_Plane004"), [""])
sketch8.MapMode = "FlatFace"
sketch8.AttachmentOffset = App.Placement(App.Vector(0, 0, -11), App.Rotation())
sketch8.addGeometry(Part.ArcOfCircle(Part.Circle(App.Vector(-16.2, 24.5, 0), App.Vector(0, 0, 1), 3.5), math.radians(157), math.radians(203)), False)
sketch8.addGeometry(Part.ArcOfCircle(Part.Circle(App.Vector(-19, 27.3, 0), App.Vector(0, 0, 1), 1.5), math.radians(-105), math.radians(16)), False)
sketch8.addGeometry(Part.ArcOfCircle(Part.Circle(App.Vector(-16.2, 24.5, 0), App.Vector(0, 0, 1), 3.5), math.radians(67), math.radians(113)), False)
sketch8.addGeometry(Part.ArcOfCircle(Part.Circle(App.Vector(-13.4, 27.3, 0), App.Vector(0, 0, 1), 1.5), math.radians(164), math.radians(285)), False)
sketch8.addGeometry(Part.ArcOfCircle(Part.Circle(App.Vector(-16.2, 24.5, 0), App.Vector(0, 0, 1), 3.5), math.radians(-23), math.radians(23)), False)
sketch8.addGeometry(Part.ArcOfCircle(Part.Circle(App.Vector(-13.4, 21.7, 0), App.Vector(0, 0, 1), 1.5), math.radians(75), math.radians(196)), False)
sketch8.addGeometry(Part.ArcOfCircle(Part.Circle(App.Vector(-16.2, 24.5, 0), App.Vector(0, 0, 1), 3.5), math.radians(-113), math.radians(-67)), False)
sketch8.addGeometry(Part.ArcOfCircle(Part.Circle(App.Vector(-19, 21.7, 0), App.Vector(0, 0, 1), 1.5), math.radians(-16), math.radians(105)), False)
add_polygon(sketch8, [(-18.7, 23.8), (-16.9, 23.8), (-16.9, 22), (-15.5, 22), (-15.5, 23.8), (-13.7, 23.8), (-13.7, 25.2), (-15.5, 25.2), (-15.5, 27), (-16.9, 27), (-16.9, 25.2), (-18.7, 25.2)])
sketch8.addConstraint(Sketcher.Constraint("Coincident", 0, 1, 1, 1))
sketch8.addConstraint(Sketcher.Constraint("Coincident", 1, 2, 2, 2))
sketch8.addConstraint(Sketcher.Constraint("Coincident", 2, 1, 3, 1))
sketch8.addConstraint(Sketcher.Constraint("Coincident", 3, 2, 4, 2))
sketch8.addConstraint(Sketcher.Constraint("Coincident", 4, 1, 5, 1))
sketch8.addConstraint(Sketcher.Constraint("Coincident", 5, 2, 6, 2))
sketch8.addConstraint(Sketcher.Constraint("Coincident", 6, 1, 7, 1))
sketch8.addConstraint(Sketcher.Constraint("Coincident", 7, 2, 0, 2))
sketch8.addConstraint(Sketcher.Constraint("Horizontal", 8))
sketch8.addConstraint(Sketcher.Constraint("Vertical", 9))
sketch8.addConstraint(Sketcher.Constraint("Horizontal", 10))
sketch8.addConstraint(Sketcher.Constraint("Vertical", 11))
sketch8.addConstraint(Sketcher.Constraint("Horizontal", 12))
sketch8.addConstraint(Sketcher.Constraint("Vertical", 13))
sketch8.addConstraint(Sketcher.Constraint("Horizontal", 14))
sketch8.addConstraint(Sketcher.Constraint("Vertical", 15))
sketch8.addConstraint(Sketcher.Constraint("Horizontal", 16))
sketch8.addConstraint(Sketcher.Constraint("Vertical", 17))
sketch8.addConstraint(Sketcher.Constraint("Horizontal", 18))
sketch8.addConstraint(Sketcher.Constraint("Vertical", 19))
sketch8.addConstraint(Sketcher.Constraint("Coincident", 2, 3, 0, 3))
sketch8.addConstraint(Sketcher.Constraint("Coincident", 4, 3, 0, 3))
sketch8.addConstraint(Sketcher.Constraint("Coincident", 6, 3, 0, 3))
sketch8.addConstraint(Sketcher.Constraint("Equal", 0, 2))
sketch8.addConstraint(Sketcher.Constraint("Equal", 1, 3))
sketch8.addConstraint(Sketcher.Constraint("Equal", 2, 4))
sketch8.addConstraint(Sketcher.Constraint("Equal", 3, 5))
sketch8.addConstraint(Sketcher.Constraint("Equal", 4, 6))
sketch8.addConstraint(Sketcher.Constraint("Equal", 5, 7))
sketch8.addConstraint(Sketcher.Constraint("Horizontal", 1, 3, 3, 3))
sketch8.addConstraint(Sketcher.Constraint("Horizontal", 5, 3, 7, 3))
sketch8.addConstraint(Sketcher.Constraint("Horizontal", 1, 2, 2, 1))
sketch8.addConstraint(Sketcher.Constraint("Horizontal", 5, 2, 6, 1))
sketch8.addConstraint(Sketcher.Constraint("Horizontal", 8, 2, 11, 2))
sketch8.addConstraint(Sketcher.Constraint("Horizontal", 14, 2, 17, 2))
sketch8.addConstraint(Sketcher.Constraint("Vertical", 3, 3, 5, 3))
sketch8.addConstraint(Sketcher.Constraint("Vertical", 3, 2, 4, 1))
sketch8.addConstraint(Sketcher.Constraint("Vertical", 11, 2, 14, 2))
sketch8.addConstraint(Sketcher.Constraint("Vertical", 9, 2, 16, 2))
sketch8.addConstraint(Sketcher.Constraint("Equal", 8, 12))
sketch8.addConstraint(Sketcher.Constraint("Equal", 18, 9))
sketch8.addConstraint(Sketcher.Constraint("Equal", 16, 13))
sketch8.addConstraint(Sketcher.Constraint("Equal", 11, 15))
sketch8.addConstraint(Sketcher.Constraint("Radius", 0, Q("3.5 mm")))
sketch8.addConstraint(Sketcher.Constraint("Radius", 1, Q("1.5 mm")))
sketch8.addConstraint(Sketcher.Constraint("DistanceY", -1, 1, 9, 2, Q("22 mm")))
sketch8.addConstraint(Sketcher.Constraint("DistanceY", -1, 1, 15, 2, Q("27 mm")))
sketch8.addConstraint(Sketcher.Constraint("DistanceX", 0, 3, -1, 1, Q("16.2 mm")))
sketch8.addConstraint(Sketcher.Constraint("DistanceY", -1, 1, 0, 3, Q("24.5 mm")))
sketch8.addConstraint(Sketcher.Constraint("DistanceX", 12, 2, -1, 1, Q("13.7 mm")))
sketch8.addConstraint(Sketcher.Constraint("DistanceX", 10, 1, 10, 2, Q("1.317528 mm")))
sketch8.addConstraint(Sketcher.Constraint("DistanceX", 1, 3, -1, 1, Q("19.037531 mm")))
sketch8.addConstraint(Sketcher.Constraint("DistanceX", 1, 2, -1, 1, Q("17.593179 mm")))
sketch8.setExpression("Constraints[55]", "Params.sketch8_radius")
sketch8.setExpression("Constraints[56]", "Params.sketch8_radius2")
pad5 = body5.newObject("PartDesign::Pad", "Pad004")
pad5.Profile = sketch8
pad5.setExpression("Length", "Params.pad5_length")
pad5.Reversed = True
body6 = doc.addObject("PartDesign::Body", "Body005")

sketch9 = body6.newObject("Sketcher::SketchObject", "Sketch008")
sketch9.AttachmentSupport = (doc.getObject("XZ_Plane005"), [""])
sketch9.MapMode = "FlatFace"
sketch9.AttachmentOffset = App.Placement(App.Vector(0, 0, -11), App.Rotation())
sketch9.addGeometry(Part.ArcOfCircle(Part.Circle(App.Vector(-16.2, -25, 0), App.Vector(0, 0, 1), 3.5), math.radians(159), math.radians(201)), False)
sketch9.addGeometry(Part.ArcOfCircle(Part.Circle(App.Vector(-19, -22.3, 0), App.Vector(0, 0, 1), 1.5), math.radians(-107), math.radians(20)), False)
sketch9.addGeometry(Part.ArcOfCircle(Part.Circle(App.Vector(-16.2, -25, 0), App.Vector(0, 0, 1), 3.5), math.radians(66), math.radians(114)), False)
sketch9.addGeometry(Part.ArcOfCircle(Part.Circle(App.Vector(-13.4, -22.3, 0), App.Vector(0, 0, 1), 1.5), math.radians(160), math.radians(287)), False)
sketch9.addGeometry(Part.ArcOfCircle(Part.Circle(App.Vector(-16.2, -25, 0), App.Vector(0, 0, 1), 3.5), math.radians(-21), math.radians(21)), False)
sketch9.addGeometry(Part.ArcOfCircle(Part.Circle(App.Vector(-13.4, -27.7, 0), App.Vector(0, 0, 1), 1.5), math.radians(73), math.radians(200)), False)
sketch9.addGeometry(Part.ArcOfCircle(Part.Circle(App.Vector(-16.2, -25, 0), App.Vector(0, 0, 1), 3.5), math.radians(-114), math.radians(-66)), False)
sketch9.addGeometry(Part.ArcOfCircle(Part.Circle(App.Vector(-19, -27.7, 0), App.Vector(0, 0, 1), 1.5), math.radians(-20), math.radians(107)), False)
add_polygon(sketch9, [(-18.7, -25.7), (-16.9, -25.7), (-16.9, -27.5), (-15.5, -27.5), (-15.5, -25.7), (-13.7, -25.7), (-13.7, -24.3), (-15.5, -24.3), (-15.5, -22.5), (-16.9, -22.5), (-16.9, -24.3), (-18.7, -24.3)])
sketch9.addConstraint(Sketcher.Constraint("Coincident", 0, 1, 1, 1))
sketch9.addConstraint(Sketcher.Constraint("Coincident", 1, 2, 2, 2))
sketch9.addConstraint(Sketcher.Constraint("Coincident", 2, 1, 3, 1))
sketch9.addConstraint(Sketcher.Constraint("Coincident", 3, 2, 4, 2))
sketch9.addConstraint(Sketcher.Constraint("Coincident", 4, 1, 5, 1))
sketch9.addConstraint(Sketcher.Constraint("Coincident", 5, 2, 6, 2))
sketch9.addConstraint(Sketcher.Constraint("Coincident", 6, 1, 7, 1))
sketch9.addConstraint(Sketcher.Constraint("Coincident", 7, 2, 0, 2))
sketch9.addConstraint(Sketcher.Constraint("Horizontal", 8))
sketch9.addConstraint(Sketcher.Constraint("Vertical", 9))
sketch9.addConstraint(Sketcher.Constraint("Horizontal", 10))
sketch9.addConstraint(Sketcher.Constraint("Vertical", 11))
sketch9.addConstraint(Sketcher.Constraint("Horizontal", 12))
sketch9.addConstraint(Sketcher.Constraint("Vertical", 13))
sketch9.addConstraint(Sketcher.Constraint("Horizontal", 14))
sketch9.addConstraint(Sketcher.Constraint("Vertical", 15))
sketch9.addConstraint(Sketcher.Constraint("Horizontal", 16))
sketch9.addConstraint(Sketcher.Constraint("Vertical", 17))
sketch9.addConstraint(Sketcher.Constraint("Horizontal", 18))
sketch9.addConstraint(Sketcher.Constraint("Vertical", 19))
sketch9.addConstraint(Sketcher.Constraint("Coincident", 2, 3, 0, 3))
sketch9.addConstraint(Sketcher.Constraint("Coincident", 4, 3, 0, 3))
sketch9.addConstraint(Sketcher.Constraint("Coincident", 6, 3, 0, 3))
sketch9.addConstraint(Sketcher.Constraint("Equal", 0, 2))
sketch9.addConstraint(Sketcher.Constraint("Equal", 1, 3))
sketch9.addConstraint(Sketcher.Constraint("Equal", 2, 4))
sketch9.addConstraint(Sketcher.Constraint("Equal", 3, 5))
sketch9.addConstraint(Sketcher.Constraint("Equal", 4, 6))
sketch9.addConstraint(Sketcher.Constraint("Equal", 5, 7))
sketch9.addConstraint(Sketcher.Constraint("Horizontal", 1, 3, 3, 3))
sketch9.addConstraint(Sketcher.Constraint("Horizontal", 5, 3, 7, 3))
sketch9.addConstraint(Sketcher.Constraint("Horizontal", 1, 2, 2, 1))
sketch9.addConstraint(Sketcher.Constraint("Horizontal", 5, 2, 6, 1))
sketch9.addConstraint(Sketcher.Constraint("Horizontal", 8, 2, 11, 2))
sketch9.addConstraint(Sketcher.Constraint("Horizontal", 14, 2, 17, 2))
sketch9.addConstraint(Sketcher.Constraint("Vertical", 3, 3, 5, 3))
sketch9.addConstraint(Sketcher.Constraint("Vertical", 3, 2, 4, 1))
sketch9.addConstraint(Sketcher.Constraint("Vertical", 11, 2, 14, 2))
sketch9.addConstraint(Sketcher.Constraint("Vertical", 9, 2, 16, 2))
sketch9.addConstraint(Sketcher.Constraint("Equal", 8, 12))
sketch9.addConstraint(Sketcher.Constraint("Equal", 18, 9))
sketch9.addConstraint(Sketcher.Constraint("Equal", 16, 13))
sketch9.addConstraint(Sketcher.Constraint("Equal", 11, 15))
sketch9.addConstraint(Sketcher.Constraint("Radius", 0, Q("3.5 mm")))
sketch9.addConstraint(Sketcher.Constraint("Radius", 1, Q("1.5 mm")))
sketch9.addConstraint(Sketcher.Constraint("DistanceY", 0, 3, -1, 1, Q("25 mm")))
sketch9.addConstraint(Sketcher.Constraint("DistanceX", 0, 3, -1, 1, Q("16.2 mm")))
sketch9.addConstraint(Sketcher.Constraint("DistanceY", 9, 2, -1, 1, Q("27.5 mm")))
sketch9.addConstraint(Sketcher.Constraint("DistanceX", 12, 2, -1, 1, Q("13.7 mm")))
sketch9.addConstraint(Sketcher.Constraint("DistanceY", 15, 2, -1, 1, Q("22.5 mm")))
sketch9.addConstraint(Sketcher.Constraint("DistanceX", 10, 1, 10, 2, Q("1.317528 mm")))
sketch9.addConstraint(Sketcher.Constraint("DistanceX", 1, 3, -1, 1, Q("19.037531 mm")))
sketch9.addConstraint(Sketcher.Constraint("DistanceX", 1, 2, -1, 1, Q("17.631872 mm")))
sketch9.setExpression("Constraints[55]", "Params.sketch9_radius")
sketch9.setExpression("Constraints[56]", "Params.sketch9_radius2")
pad6 = body6.newObject("PartDesign::Pad", "Pad005")
pad6.Profile = sketch9
pad6.setExpression("Length", "Params.pad6_length")
pad6.Reversed = True
body7 = doc.addObject("PartDesign::Body", "Body006")

sketch10 = body7.newObject("Sketcher::SketchObject", "Sketch009")
sketch10.AttachmentSupport = (doc.getObject("YZ_Plane006"), [""])
sketch10.MapMode = "FlatFace"
sketch10.AttachmentOffset = App.Placement(App.Vector(0, 0, -20.5), App.Rotation())
add_polygon(sketch10, [(11, -25), (3, -25), (3, 25), (11, 25)])
sketch10.addConstraint(Sketcher.Constraint("Horizontal", 0))
sketch10.addConstraint(Sketcher.Constraint("Vertical", 1))
sketch10.addConstraint(Sketcher.Constraint("Horizontal", 2))
sketch10.addConstraint(Sketcher.Constraint("Vertical", 3))
sketch10.addConstraint(Sketcher.Constraint("DistanceX", 0, 2, 0, 1, Q("8 mm")))
sketch10.addConstraint(Sketcher.Constraint("DistanceY", 1, 1, 1, 2, Q("50 mm")))
sketch10.addConstraint(Sketcher.Constraint("DistanceX", -1, 1, 0, 2, Q("3 mm")))
sketch10.addConstraint(Sketcher.Constraint("DistanceY", 0, 2, -1, 1, Q("25 mm")))
sketch10.setExpression("Constraints[8]", "Params.sketch10_width")
sketch10.setExpression("Constraints[9]", "Params.sketch10_height")
pad7 = body7.newObject("PartDesign::Pad", "Pad006")
pad7.Profile = sketch10
pad7.setExpression("Length", "Params.pad7_length")
pad7.Reversed = True
body8 = doc.addObject("PartDesign::Body", "Body007")

sketch11 = body8.newObject("Sketcher::SketchObject", "Sketch010")
sketch11.AttachmentSupport = (doc.getObject("YZ_Plane007"), [""])
sketch11.MapMode = "FlatFace"
sketch11.AttachmentOffset = App.Placement(App.Vector(0, 0, -24), App.Rotation())
add_polygon(sketch11, [(11, -8), (3, -8), (3, 8), (11, 8)])
sketch11.addConstraint(Sketcher.Constraint("Horizontal", 0))
sketch11.addConstraint(Sketcher.Constraint("Vertical", 1))
sketch11.addConstraint(Sketcher.Constraint("Horizontal", 2))
sketch11.addConstraint(Sketcher.Constraint("Vertical", 3))
sketch11.addConstraint(Sketcher.Constraint("DistanceX", 0, 2, 0, 1, Q("8 mm")))
sketch11.addConstraint(Sketcher.Constraint("DistanceY", 1, 1, 1, 2, Q("16 mm")))
sketch11.addConstraint(Sketcher.Constraint("DistanceX", -1, 1, 0, 2, Q("3 mm")))
sketch11.addConstraint(Sketcher.Constraint("DistanceY", 0, 2, -1, 1, Q("8 mm")))
sketch11.setExpression("Constraints[8]", "Params.sketch11_width")
sketch11.setExpression("Constraints[9]", "Params.sketch11_height")
pad8 = body8.newObject("PartDesign::Pad", "Pad007")
pad8.Profile = sketch11
pad8.setExpression("Length", "Params.pad8_length")
pad8.Reversed = True
body9 = doc.addObject("PartDesign::Body", "Body008")

sketch12 = body9.newObject("Sketcher::SketchObject", "Sketch011")
sketch12.AttachmentSupport = (doc.getObject("YZ_Plane008"), [""])
sketch12.MapMode = "FlatFace"
sketch12.AttachmentOffset = App.Placement(App.Vector(0, 0, -24), App.Rotation())
sketch12.addGeometry(Part.Circle(App.Vector(7, 20.5, 0), App.Vector(0, 0, 1), 4), False)
sketch12.addConstraint(Sketcher.Constraint("Diameter", 0, Q("8 mm")))
sketch12.addConstraint(Sketcher.Constraint("DistanceX", -1, 1, 0, 3, Q("7 mm")))
sketch12.addConstraint(Sketcher.Constraint("DistanceY", -1, 1, 0, 3, Q("20.5 mm")))
sketch12.setExpression("Constraints[0]", "Params.sketch12_diameter")
pad9 = body9.newObject("PartDesign::Pad", "Pad008")
pad9.Profile = sketch12
pad9.setExpression("Length", "Params.pad9_length")
pad9.Reversed = True
body10 = doc.addObject("PartDesign::Body", "Body009")

sketch13 = body10.newObject("Sketcher::SketchObject", "Sketch012")
sketch13.AttachmentSupport = (doc.getObject("YZ_Plane009"), [""])
sketch13.MapMode = "FlatFace"
sketch13.AttachmentOffset = App.Placement(App.Vector(0, 0, -24), App.Rotation())
sketch13.addGeometry(Part.Circle(App.Vector(7, 12, 0), App.Vector(0, 0, 1), 4), False)
sketch13.addConstraint(Sketcher.Constraint("Diameter", 0, Q("8 mm")))
sketch13.addConstraint(Sketcher.Constraint("DistanceX", -1, 1, 0, 3, Q("7 mm")))
sketch13.addConstraint(Sketcher.Constraint("DistanceY", -1, 1, 0, 3, Q("12 mm")))
sketch13.setExpression("Constraints[0]", "Params.sketch13_diameter")
pad10 = body10.newObject("PartDesign::Pad", "Pad009")
pad10.Profile = sketch13
pad10.setExpression("Length", "Params.pad10_length")
pad10.Reversed = True
body11 = doc.addObject("PartDesign::Body", "Body010")

sketch14 = body11.newObject("Sketcher::SketchObject", "Sketch013")
sketch14.AttachmentSupport = (doc.getObject("YZ_Plane010"), [""])
sketch14.MapMode = "FlatFace"
sketch14.AttachmentOffset = App.Placement(App.Vector(0, 0, -24), App.Rotation())
sketch14.addGeometry(Part.Circle(App.Vector(7, -12.5, 0), App.Vector(0, 0, 1), 4), False)
sketch14.addConstraint(Sketcher.Constraint("Diameter", 0, Q("8 mm")))
sketch14.addConstraint(Sketcher.Constraint("DistanceX", -1, 1, 0, 3, Q("7 mm")))
sketch14.addConstraint(Sketcher.Constraint("DistanceY", 0, 3, -1, 1, Q("12.5 mm")))
sketch14.setExpression("Constraints[0]", "Params.sketch14_diameter")
pad11 = body11.newObject("PartDesign::Pad", "Pad010")
pad11.Profile = sketch14
pad11.setExpression("Length", "Params.pad11_length")
pad11.Reversed = True
body12 = doc.addObject("PartDesign::Body", "Body011")

sketch15 = body12.newObject("Sketcher::SketchObject", "Sketch014")
sketch15.AttachmentSupport = (doc.getObject("YZ_Plane011"), [""])
sketch15.MapMode = "FlatFace"
sketch15.AttachmentOffset = App.Placement(App.Vector(0, 0, -24), App.Rotation())
sketch15.addGeometry(Part.Circle(App.Vector(7, -21, 0), App.Vector(0, 0, 1), 4), False)
sketch15.addConstraint(Sketcher.Constraint("Diameter", 0, Q("8 mm")))
sketch15.addConstraint(Sketcher.Constraint("DistanceX", -1, 1, 0, 3, Q("7 mm")))
sketch15.addConstraint(Sketcher.Constraint("DistanceY", 0, 3, -1, 1, Q("21 mm")))
sketch15.setExpression("Constraints[0]", "Params.sketch15_diameter")
pad12 = body12.newObject("PartDesign::Pad", "Pad011")
pad12.Profile = sketch15
pad12.setExpression("Length", "Params.pad12_length")
pad12.Reversed = True
body13 = doc.addObject("PartDesign::Body", "Body012")
doc.recompute()

mirroring = doc.addObject("Part::Mirroring", "Mirroring")
mirroring.Source = body7
mirroring.Base = App.Vector(0, 0, 0)
mirroring.Normal = App.Vector(1, 0, 0)
body13.BaseFeature = mirroring
doc.recompute()
body14 = doc.addObject("PartDesign::Body", "Body013")
doc.recompute()

mirroring2 = doc.addObject("Part::Mirroring", "Mirroring001")
mirroring2.Source = body8
mirroring2.Base = App.Vector(0, 0, 0)
mirroring2.Normal = App.Vector(1, 0, 0)
body14.BaseFeature = mirroring2
doc.recompute()
body15 = doc.addObject("PartDesign::Body", "Body014")
doc.recompute()

mirroring3 = doc.addObject("Part::Mirroring", "Mirroring002")
mirroring3.Source = body10
mirroring3.Base = App.Vector(0, 0, 0)
mirroring3.Normal = App.Vector(1, 0, 0)
body15.BaseFeature = mirroring3
doc.recompute()
body16 = doc.addObject("PartDesign::Body", "Body015")
doc.recompute()

mirroring4 = doc.addObject("Part::Mirroring", "Mirroring003")
mirroring4.Source = body9
mirroring4.Base = App.Vector(0, 0, 0)
mirroring4.Normal = App.Vector(1, 0, 0)
body16.BaseFeature = mirroring4
doc.recompute()
body17 = doc.addObject("PartDesign::Body", "Body016")
doc.recompute()

mirroring5 = doc.addObject("Part::Mirroring", "Mirroring004")
mirroring5.Source = body11
mirroring5.Base = App.Vector(0, 0, 0)
mirroring5.Normal = App.Vector(1, 0, 0)
body17.BaseFeature = mirroring5
doc.recompute()
body18 = doc.addObject("PartDesign::Body", "Body017")
doc.recompute()

mirroring6 = doc.addObject("Part::Mirroring", "Mirroring005")
mirroring6.Source = body12
mirroring6.Base = App.Vector(0, 0, 0)
mirroring6.Normal = App.Vector(1, 0, 0)
body18.BaseFeature = mirroring6
doc.recompute()

doc.recompute()
